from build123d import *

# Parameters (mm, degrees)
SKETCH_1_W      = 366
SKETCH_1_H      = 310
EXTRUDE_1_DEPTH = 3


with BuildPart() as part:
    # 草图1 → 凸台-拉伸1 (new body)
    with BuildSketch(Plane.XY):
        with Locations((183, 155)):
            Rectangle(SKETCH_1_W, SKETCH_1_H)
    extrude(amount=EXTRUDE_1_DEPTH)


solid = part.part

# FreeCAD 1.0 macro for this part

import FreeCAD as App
import Part
import Sketcher

V = App.Vector


def add_polygon(sketch, points):
    """Adds a closed chain of lines whose ends are joined by coincident constraints."""
    first, n = sketch.GeometryCount, len(points)
    for a, b in zip(points, points[1:] + points[:1]):
        sketch.addGeometry(Part.LineSegment(App.Vector(*a, 0), App.Vector(*b, 0)), False)
    for i in range(n):
        sketch.addConstraint(Sketcher.Constraint("Coincident", first + i, 2, first + (i + 1) % n, 1))

doc = App.newDocument("Part")
body = doc.addObject("PartDesign::Body", "Body")

sketch1 = body.newObject("Sketcher::SketchObject", "Sketch")
sketch1.AttachmentSupport = (doc.getObject("XY_Plane"), [""])
sketch1.MapMode = "FlatFace"
add_polygon(sketch1, [(0, 310), (0, 0), (366, 0), (366, 310)])
sketch1.addConstraint(Sketcher.Constraint("Vertical", 0))
sketch1.addConstraint(Sketcher.Constraint("Horizontal", 1))
sketch1.addConstraint(Sketcher.Constraint("Vertical", 2))
sketch1.addConstraint(Sketcher.Constraint("Horizontal", 3))
sketch1.addConstraint(Sketcher.Constraint("Coincident", 0, 2, -1, 1))
sketch1.addConstraint(Sketcher.Constraint("DistanceX", 1, 1, 1, 2, 366.0))
sketch1.addConstraint(Sketcher.Constraint("DistanceY", 0, 2, 0, 1, 310.0))
pad1 = body.newObject("PartDesign::Pad", "Pad")
pad1.Profile = sketch1
pad1.Length = 3

doc.recompute()
